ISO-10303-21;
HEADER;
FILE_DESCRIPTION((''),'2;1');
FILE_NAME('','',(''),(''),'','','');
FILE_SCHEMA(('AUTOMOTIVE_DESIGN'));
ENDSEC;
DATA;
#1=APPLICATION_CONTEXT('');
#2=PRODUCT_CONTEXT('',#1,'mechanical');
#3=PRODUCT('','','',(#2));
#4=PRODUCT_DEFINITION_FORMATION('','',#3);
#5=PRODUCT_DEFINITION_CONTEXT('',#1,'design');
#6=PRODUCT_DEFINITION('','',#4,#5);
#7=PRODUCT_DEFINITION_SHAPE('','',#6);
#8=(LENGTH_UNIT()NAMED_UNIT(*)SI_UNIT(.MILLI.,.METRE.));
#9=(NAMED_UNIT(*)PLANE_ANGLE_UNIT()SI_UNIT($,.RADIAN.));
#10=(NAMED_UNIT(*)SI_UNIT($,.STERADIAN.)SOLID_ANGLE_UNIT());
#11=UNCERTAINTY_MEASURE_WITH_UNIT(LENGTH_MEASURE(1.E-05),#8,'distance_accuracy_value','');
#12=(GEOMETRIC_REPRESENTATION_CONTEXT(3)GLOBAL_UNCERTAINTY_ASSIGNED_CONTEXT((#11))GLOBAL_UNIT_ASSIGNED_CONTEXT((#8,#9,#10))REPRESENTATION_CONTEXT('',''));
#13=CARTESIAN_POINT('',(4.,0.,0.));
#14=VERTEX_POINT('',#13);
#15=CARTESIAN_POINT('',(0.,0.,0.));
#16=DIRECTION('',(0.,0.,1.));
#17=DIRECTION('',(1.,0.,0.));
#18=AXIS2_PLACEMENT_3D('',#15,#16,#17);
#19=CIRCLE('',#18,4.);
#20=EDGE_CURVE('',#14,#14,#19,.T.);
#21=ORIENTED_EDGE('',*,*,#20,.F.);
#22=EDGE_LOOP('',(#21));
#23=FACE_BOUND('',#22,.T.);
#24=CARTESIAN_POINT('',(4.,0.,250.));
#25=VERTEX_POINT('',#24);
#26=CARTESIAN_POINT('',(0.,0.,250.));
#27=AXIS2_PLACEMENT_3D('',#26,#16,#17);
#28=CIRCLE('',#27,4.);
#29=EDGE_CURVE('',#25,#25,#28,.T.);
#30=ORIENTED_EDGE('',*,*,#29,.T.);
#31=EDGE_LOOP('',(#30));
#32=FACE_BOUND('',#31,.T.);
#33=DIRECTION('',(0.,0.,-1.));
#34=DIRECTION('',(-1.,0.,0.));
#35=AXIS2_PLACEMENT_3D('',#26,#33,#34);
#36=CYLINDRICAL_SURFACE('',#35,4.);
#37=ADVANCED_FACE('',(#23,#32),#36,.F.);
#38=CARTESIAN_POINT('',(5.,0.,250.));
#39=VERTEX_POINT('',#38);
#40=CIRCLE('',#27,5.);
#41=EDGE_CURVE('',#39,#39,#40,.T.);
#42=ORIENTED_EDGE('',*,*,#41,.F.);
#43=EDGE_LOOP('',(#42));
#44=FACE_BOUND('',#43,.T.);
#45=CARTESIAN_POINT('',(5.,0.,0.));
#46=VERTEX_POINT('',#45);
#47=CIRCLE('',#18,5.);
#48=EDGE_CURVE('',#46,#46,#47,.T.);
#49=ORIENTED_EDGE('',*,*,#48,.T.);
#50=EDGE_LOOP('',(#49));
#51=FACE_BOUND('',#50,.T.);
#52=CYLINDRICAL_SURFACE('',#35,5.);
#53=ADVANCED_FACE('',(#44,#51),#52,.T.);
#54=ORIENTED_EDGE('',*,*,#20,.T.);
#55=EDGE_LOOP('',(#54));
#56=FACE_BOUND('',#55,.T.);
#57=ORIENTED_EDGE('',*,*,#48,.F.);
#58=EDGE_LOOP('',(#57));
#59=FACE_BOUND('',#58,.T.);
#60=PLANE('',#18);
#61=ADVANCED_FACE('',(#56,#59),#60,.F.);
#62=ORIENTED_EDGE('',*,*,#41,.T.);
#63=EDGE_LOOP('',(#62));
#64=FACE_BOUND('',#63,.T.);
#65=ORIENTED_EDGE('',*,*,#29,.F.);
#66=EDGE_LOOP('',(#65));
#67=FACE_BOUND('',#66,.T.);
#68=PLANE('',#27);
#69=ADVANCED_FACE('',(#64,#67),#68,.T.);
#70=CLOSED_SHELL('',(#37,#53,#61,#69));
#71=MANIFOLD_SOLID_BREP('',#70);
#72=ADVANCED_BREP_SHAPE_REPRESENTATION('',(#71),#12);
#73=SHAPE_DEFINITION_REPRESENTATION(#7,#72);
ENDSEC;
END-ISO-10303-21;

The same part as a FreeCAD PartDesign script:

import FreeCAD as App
import Part
import Sketcher
from FreeCAD import Vector
Q = App.Units.Quantity

doc = App.newDocument("Part")
params = doc.addObject("Spreadsheet::Sheet", "Params")
for row, (alias, value) in enumerate([
    ("sketch1_diameter", "10 mm"),
    ("sketch1_diameter2", "8 mm"),
    ("pad1_length", "250 mm"),
], start=1):
    params.set(f"A{row}", alias)
    params.set(f"B{row}", "=" + value)
    params.setAlias(f"B{row}", alias)

body = doc.addObject("PartDesign::Body", "Body")

# Sketch on XY plane
sketch1 = doc.addObject("Sketcher::SketchObject", "Sketch")
body.addObject(sketch1)
sketch1.AttachmentSupport = (doc.XY_Plane, [""])
sketch1.MapMode = "FlatFace"
sketch1.addGeometry([
    Part.Circle(Vector(0, 0, 0), Vector(0, 0, 1), 5),
    Part.Circle(Vector(0, 0, 0), Vector(0, 0, 1), 4),
], False)
sketch1.addConstraint([
    Sketcher.Constraint("Coincident", 0, 3, -1, 1),
    Sketcher.Constraint("Coincident", 1, 3, -1, 1),
    Sketcher.Constraint("Diameter", 0, Q("10 mm")),
    Sketcher.Constraint("Diameter", 1, Q("8 mm")),
])
sketch1.setExpression("Constraints[2]", "Params.sketch1_diameter")
sketch1.setExpression("Constraints[3]", "Params.sketch1_diameter2")
pad1 = doc.addObject("PartDesign::Pad", "Pad")
body.addObject(pad1)
pad1.Profile = sketch1
pad1.setExpression("Length", "Params.pad1_length")

doc.recompute()
